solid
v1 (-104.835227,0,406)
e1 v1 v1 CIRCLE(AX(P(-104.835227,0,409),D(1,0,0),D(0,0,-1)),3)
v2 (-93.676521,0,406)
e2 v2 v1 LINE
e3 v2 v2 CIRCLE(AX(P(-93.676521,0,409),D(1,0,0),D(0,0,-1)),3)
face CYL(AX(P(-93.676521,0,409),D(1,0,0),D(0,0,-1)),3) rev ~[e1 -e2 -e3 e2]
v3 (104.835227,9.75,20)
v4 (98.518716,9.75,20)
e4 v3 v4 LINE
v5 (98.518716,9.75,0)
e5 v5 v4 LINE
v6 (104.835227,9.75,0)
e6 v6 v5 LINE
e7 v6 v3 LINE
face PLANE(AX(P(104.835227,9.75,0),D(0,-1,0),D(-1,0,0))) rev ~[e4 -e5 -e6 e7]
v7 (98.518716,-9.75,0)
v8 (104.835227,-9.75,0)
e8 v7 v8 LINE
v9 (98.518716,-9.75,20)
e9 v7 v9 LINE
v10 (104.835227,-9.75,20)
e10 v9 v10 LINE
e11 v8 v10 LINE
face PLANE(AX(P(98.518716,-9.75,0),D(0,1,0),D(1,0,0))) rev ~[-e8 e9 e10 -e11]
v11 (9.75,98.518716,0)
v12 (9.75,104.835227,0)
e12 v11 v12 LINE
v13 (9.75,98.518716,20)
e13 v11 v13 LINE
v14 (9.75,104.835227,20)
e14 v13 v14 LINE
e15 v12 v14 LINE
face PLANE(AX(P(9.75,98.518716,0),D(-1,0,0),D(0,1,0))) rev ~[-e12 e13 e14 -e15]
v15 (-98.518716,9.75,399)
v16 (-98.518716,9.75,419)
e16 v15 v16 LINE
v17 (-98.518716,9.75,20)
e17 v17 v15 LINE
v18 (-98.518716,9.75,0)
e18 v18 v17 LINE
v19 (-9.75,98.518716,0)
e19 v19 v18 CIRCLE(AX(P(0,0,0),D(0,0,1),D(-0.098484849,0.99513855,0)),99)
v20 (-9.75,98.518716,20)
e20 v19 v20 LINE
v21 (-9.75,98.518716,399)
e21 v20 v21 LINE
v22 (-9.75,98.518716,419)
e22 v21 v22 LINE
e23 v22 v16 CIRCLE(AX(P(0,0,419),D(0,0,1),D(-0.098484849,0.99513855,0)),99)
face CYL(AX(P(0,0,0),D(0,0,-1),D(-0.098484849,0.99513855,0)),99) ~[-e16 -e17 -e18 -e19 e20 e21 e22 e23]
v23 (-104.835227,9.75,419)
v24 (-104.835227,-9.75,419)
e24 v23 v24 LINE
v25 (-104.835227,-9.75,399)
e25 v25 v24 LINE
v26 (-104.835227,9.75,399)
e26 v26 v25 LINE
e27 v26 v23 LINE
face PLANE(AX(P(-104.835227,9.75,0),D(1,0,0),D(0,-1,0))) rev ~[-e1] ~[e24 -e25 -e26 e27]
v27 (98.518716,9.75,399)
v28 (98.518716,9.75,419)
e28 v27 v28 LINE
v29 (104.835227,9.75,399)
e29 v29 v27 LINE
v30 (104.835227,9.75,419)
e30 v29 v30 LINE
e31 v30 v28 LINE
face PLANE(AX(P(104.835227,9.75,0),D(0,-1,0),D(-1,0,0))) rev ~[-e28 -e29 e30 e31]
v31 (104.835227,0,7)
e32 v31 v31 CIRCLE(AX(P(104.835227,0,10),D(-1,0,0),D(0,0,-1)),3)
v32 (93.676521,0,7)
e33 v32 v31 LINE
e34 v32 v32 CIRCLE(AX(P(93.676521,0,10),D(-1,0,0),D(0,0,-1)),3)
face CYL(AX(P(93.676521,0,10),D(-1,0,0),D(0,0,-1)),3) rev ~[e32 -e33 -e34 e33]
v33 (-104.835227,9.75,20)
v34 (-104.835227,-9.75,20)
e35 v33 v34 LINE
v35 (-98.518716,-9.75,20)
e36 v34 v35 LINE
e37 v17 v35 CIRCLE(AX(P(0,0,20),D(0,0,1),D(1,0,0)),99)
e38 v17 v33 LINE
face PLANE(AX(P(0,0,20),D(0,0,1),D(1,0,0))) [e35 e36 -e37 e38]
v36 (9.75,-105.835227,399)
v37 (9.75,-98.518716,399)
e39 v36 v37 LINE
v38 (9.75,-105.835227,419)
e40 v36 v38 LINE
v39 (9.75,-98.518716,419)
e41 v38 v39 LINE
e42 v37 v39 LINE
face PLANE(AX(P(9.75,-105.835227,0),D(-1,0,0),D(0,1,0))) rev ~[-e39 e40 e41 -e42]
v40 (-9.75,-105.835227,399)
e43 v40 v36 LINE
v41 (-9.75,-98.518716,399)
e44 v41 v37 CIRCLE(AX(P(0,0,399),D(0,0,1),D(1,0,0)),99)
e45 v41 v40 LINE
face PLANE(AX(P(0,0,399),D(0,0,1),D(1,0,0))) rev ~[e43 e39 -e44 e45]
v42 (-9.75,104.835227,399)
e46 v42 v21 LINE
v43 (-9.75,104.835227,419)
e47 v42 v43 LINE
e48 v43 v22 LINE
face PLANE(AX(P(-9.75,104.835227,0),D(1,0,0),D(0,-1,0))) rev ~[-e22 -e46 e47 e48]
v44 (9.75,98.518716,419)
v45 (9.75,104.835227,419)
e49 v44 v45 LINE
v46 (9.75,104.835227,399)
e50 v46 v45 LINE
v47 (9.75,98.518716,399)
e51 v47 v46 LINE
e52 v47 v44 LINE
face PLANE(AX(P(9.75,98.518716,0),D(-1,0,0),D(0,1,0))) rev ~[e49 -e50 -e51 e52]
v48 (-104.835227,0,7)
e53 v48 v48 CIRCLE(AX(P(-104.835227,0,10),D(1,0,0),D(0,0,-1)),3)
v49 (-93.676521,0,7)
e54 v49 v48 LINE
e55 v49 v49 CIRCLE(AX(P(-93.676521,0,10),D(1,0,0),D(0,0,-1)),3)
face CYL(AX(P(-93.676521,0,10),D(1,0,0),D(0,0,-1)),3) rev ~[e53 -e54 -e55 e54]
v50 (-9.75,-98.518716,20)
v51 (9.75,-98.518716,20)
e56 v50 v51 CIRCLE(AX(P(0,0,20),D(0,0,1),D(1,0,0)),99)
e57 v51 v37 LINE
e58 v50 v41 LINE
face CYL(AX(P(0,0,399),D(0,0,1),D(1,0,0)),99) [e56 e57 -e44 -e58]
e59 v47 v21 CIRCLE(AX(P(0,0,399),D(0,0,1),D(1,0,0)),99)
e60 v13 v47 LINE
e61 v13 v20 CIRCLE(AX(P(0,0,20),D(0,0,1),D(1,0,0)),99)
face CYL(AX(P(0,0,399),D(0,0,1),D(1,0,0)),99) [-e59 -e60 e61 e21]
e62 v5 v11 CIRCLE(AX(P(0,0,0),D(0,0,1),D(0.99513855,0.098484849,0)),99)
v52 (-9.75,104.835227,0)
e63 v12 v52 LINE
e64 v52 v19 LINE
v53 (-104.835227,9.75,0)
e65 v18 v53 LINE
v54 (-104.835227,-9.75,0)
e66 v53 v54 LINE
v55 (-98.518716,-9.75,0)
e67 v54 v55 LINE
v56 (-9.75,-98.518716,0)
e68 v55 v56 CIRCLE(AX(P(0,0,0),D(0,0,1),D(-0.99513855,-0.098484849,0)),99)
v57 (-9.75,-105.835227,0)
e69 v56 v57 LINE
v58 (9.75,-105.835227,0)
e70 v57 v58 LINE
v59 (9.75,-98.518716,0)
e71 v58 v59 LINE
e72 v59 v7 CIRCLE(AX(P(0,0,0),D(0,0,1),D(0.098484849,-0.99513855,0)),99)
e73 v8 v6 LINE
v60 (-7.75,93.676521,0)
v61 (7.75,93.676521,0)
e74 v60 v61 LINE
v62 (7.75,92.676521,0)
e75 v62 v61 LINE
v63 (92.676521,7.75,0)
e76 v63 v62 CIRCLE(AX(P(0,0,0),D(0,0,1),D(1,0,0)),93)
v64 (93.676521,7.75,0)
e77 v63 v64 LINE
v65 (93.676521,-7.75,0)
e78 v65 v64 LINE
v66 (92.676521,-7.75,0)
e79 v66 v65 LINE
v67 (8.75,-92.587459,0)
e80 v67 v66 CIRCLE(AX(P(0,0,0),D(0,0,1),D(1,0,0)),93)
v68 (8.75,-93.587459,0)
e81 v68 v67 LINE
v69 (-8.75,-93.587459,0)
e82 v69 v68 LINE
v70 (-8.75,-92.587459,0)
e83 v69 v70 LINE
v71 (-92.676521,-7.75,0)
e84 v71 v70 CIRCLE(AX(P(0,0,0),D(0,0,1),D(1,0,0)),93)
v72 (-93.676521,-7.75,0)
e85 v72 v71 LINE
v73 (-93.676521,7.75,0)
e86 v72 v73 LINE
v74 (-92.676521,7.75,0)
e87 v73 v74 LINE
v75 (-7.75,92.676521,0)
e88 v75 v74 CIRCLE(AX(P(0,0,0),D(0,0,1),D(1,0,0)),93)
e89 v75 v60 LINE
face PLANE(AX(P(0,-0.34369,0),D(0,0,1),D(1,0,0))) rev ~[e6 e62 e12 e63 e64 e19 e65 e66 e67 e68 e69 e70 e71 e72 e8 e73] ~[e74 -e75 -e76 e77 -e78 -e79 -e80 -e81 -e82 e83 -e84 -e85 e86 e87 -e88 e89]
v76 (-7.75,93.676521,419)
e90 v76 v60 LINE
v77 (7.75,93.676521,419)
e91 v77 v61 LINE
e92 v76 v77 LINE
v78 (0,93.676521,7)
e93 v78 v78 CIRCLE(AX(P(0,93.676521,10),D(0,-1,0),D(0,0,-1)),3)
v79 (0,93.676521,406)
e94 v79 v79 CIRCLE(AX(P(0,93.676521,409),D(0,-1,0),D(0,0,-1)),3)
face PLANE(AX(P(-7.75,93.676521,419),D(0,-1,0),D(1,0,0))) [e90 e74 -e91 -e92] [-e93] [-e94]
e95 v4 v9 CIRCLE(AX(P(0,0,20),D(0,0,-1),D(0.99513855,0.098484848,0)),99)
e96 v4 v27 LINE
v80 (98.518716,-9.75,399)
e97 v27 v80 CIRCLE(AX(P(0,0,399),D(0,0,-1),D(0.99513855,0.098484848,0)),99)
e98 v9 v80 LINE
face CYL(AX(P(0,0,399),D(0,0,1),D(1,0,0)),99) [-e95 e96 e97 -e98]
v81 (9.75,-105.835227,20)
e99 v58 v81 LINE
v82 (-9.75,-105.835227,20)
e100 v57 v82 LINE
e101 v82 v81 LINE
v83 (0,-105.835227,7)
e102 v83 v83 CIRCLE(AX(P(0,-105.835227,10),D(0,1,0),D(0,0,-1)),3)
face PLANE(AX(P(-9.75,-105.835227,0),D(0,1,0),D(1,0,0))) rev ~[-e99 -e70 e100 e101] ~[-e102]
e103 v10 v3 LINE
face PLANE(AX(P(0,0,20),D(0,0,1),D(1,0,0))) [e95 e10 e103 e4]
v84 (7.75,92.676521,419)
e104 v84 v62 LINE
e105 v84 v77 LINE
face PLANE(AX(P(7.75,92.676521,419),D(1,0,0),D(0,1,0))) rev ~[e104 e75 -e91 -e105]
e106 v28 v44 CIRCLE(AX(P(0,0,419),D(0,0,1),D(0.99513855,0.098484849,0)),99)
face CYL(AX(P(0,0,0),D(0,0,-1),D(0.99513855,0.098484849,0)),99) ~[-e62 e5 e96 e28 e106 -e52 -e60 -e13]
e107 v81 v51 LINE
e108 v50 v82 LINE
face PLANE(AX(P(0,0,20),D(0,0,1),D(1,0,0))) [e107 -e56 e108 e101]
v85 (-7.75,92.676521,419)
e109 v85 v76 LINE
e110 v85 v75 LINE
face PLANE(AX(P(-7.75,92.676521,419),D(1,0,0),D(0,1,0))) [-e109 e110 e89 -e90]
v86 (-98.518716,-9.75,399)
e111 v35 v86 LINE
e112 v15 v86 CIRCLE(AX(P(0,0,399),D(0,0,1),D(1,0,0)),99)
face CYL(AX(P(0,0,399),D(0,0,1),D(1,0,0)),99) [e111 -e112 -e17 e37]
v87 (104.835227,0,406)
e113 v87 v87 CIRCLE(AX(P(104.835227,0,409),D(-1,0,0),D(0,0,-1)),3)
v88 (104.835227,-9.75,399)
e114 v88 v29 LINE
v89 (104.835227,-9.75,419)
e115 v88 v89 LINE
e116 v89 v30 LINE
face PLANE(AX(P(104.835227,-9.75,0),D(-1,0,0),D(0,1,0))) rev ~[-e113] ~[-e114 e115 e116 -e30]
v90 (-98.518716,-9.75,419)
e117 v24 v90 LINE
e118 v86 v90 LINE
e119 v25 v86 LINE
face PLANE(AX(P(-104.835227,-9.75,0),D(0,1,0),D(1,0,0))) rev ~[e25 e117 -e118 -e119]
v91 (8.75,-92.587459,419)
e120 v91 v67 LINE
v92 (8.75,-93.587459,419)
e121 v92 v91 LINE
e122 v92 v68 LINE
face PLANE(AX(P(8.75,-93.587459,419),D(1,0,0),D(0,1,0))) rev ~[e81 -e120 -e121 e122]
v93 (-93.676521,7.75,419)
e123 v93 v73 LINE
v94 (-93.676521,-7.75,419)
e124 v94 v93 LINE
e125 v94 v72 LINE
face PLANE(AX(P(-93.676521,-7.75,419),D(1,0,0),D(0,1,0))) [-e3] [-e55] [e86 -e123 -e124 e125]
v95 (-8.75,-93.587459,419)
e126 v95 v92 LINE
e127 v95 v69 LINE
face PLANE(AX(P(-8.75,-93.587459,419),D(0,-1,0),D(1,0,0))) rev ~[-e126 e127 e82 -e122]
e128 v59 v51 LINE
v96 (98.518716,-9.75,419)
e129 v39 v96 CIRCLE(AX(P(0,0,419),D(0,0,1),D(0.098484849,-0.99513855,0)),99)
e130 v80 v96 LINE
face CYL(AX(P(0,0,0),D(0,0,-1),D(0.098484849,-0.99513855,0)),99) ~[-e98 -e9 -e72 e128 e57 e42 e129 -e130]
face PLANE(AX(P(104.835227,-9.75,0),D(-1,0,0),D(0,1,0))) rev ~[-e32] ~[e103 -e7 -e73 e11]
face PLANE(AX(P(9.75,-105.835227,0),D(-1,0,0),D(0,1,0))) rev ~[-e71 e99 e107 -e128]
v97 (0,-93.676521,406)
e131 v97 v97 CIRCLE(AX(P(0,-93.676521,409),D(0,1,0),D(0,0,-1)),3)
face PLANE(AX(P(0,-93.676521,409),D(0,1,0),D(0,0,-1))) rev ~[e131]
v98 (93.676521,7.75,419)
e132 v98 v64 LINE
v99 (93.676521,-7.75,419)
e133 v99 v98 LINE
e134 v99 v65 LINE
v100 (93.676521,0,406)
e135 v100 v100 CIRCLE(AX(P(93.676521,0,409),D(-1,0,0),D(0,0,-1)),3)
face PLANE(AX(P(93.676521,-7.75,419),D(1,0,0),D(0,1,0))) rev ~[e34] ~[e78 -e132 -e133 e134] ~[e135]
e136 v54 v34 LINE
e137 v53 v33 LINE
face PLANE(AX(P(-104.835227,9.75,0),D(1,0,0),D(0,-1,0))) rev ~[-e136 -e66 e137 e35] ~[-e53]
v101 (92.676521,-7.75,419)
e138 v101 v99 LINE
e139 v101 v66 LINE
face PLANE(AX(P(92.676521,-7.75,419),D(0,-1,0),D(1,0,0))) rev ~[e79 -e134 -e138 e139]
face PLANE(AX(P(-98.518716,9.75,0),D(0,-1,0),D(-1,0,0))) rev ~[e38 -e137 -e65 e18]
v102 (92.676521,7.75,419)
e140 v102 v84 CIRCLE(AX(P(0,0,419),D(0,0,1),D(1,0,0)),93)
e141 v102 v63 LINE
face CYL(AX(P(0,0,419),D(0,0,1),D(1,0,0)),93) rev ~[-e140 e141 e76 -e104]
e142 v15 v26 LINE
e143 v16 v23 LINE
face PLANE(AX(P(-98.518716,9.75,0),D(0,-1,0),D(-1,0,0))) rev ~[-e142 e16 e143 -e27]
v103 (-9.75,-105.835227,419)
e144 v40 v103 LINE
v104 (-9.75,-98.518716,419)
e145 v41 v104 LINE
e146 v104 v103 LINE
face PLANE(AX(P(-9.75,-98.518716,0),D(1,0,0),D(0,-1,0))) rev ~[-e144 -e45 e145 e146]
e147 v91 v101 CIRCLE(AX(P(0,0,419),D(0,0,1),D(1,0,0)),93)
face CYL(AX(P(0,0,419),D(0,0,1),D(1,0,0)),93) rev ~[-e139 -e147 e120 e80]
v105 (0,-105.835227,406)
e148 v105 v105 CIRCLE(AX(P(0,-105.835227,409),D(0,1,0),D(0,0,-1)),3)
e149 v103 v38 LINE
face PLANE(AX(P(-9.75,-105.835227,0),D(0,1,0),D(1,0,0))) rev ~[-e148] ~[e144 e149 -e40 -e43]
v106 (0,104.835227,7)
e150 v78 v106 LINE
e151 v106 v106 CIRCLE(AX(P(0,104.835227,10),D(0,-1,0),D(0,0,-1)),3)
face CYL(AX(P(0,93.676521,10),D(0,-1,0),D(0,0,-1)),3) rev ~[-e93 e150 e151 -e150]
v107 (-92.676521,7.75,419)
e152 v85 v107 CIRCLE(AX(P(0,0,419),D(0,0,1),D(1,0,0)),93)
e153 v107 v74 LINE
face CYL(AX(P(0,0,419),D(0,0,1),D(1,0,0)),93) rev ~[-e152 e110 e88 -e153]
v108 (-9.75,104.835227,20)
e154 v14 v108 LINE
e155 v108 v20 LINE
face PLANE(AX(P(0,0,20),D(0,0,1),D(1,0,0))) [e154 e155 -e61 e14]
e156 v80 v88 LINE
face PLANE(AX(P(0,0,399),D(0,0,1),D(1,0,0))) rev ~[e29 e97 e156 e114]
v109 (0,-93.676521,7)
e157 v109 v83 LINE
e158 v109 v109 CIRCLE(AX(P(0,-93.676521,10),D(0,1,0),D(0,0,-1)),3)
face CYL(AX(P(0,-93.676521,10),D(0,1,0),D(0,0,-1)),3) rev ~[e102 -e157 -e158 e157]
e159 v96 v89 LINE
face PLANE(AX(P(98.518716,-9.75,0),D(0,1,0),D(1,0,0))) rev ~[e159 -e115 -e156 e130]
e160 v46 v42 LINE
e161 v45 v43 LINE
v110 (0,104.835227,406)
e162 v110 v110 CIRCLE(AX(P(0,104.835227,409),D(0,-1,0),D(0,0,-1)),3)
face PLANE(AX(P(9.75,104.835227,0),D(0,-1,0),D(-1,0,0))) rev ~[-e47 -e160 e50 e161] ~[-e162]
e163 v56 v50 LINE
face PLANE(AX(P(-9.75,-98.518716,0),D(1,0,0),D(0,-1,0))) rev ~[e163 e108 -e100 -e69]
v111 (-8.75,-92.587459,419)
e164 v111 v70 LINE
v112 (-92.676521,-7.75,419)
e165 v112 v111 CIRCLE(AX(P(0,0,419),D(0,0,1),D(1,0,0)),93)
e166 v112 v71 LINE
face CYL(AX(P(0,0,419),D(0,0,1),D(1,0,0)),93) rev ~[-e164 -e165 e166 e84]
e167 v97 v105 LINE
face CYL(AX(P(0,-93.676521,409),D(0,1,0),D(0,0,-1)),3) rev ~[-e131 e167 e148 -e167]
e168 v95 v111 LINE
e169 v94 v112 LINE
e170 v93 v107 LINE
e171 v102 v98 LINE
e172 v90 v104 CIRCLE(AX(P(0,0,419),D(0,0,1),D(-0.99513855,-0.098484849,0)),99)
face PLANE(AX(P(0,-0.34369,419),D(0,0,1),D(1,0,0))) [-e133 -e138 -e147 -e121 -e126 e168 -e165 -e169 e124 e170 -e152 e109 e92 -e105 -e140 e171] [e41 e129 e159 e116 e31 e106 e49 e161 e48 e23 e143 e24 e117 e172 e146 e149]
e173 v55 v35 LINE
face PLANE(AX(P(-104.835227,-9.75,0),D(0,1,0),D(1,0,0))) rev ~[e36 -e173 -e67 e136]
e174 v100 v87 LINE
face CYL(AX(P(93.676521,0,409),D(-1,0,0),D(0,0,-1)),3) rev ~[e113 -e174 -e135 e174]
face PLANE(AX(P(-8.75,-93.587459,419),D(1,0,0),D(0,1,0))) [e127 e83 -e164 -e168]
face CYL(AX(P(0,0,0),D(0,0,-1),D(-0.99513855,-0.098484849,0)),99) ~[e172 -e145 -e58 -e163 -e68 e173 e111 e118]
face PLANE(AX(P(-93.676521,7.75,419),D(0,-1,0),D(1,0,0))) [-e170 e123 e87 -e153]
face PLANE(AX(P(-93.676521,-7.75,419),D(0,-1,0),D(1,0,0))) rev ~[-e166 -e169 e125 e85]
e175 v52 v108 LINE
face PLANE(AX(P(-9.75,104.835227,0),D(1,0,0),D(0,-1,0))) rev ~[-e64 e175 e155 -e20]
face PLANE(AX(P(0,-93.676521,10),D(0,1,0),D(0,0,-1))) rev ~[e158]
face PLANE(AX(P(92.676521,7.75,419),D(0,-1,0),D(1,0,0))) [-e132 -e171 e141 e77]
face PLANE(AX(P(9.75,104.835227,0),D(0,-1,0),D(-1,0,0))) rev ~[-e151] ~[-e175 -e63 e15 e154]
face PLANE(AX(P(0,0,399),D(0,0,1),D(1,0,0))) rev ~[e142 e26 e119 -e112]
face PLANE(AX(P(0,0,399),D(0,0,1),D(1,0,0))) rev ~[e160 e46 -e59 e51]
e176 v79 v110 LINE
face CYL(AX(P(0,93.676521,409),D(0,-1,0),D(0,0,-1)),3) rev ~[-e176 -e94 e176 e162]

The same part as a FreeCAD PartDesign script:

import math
import FreeCAD as App
import Part
import Sketcher

V = App.Vector
Q = App.Units.Quantity


def add_polygon(sketch, points):
    """Adds a closed chain of lines whose ends are joined by coincident constraints."""
    first, n = sketch.GeometryCount, len(points)
    for a, b in zip(points, points[1:] + points[:1]):
        sketch.addGeometry(Part.LineSegment(App.Vector(*a, 0), App.Vector(*b, 0)), False)
    for i in range(n):
        sketch.addConstraint(Sketcher.Constraint("Coincident", first + i, 2, first + (i + 1) % n, 1))

doc = App.newDocument("Part")
body = doc.addObject("PartDesign::Body", "Body")

sketch1 = body.newObject("Sketcher::SketchObject", "Sketch")
sketch1.AttachmentSupport = (doc.getObject("XY_Plane"), [""])
sketch1.MapMode = "FlatFace"
sketch1.addGeometry([
    Part.LineSegment(V(-10, -99, 0), V(-10, -106, 0)),
    Part.LineSegment(V(-10, -106, 0), V(10, -106, 0)),
    Part.LineSegment(V(10, -106, 0), V(10, -99, 0)),
    Part.ArcOfCircle(Part.Circle(V(0, 0, 0), V(0, 0, 1), 99), math.radians(-84), math.radians(-6)),
    Part.LineSegment(V(99, -10, 0), V(105, -10, 0)),
    Part.LineSegment(V(105, -10, 0), V(105, 10, 0)),
    Part.LineSegment(V(105, 10, 0), V(99, 10, 0)),
    Part.ArcOfCircle(Part.Circle(V(0, 0, 0), V(0, 0, 1), 99), math.radians(6), math.radians(84)),
    Part.LineSegment(V(10, 99, 0), V(10, 105, 0)),
    Part.LineSegment(V(10, 105, 0), V(-10, 105, 0)),
    Part.LineSegment(V(-10, 105, 0), V(-10, 99, 0)),
    Part.ArcOfCircle(Part.Circle(V(0, 0, 0), V(0, 0, 1), 99), math.radians(96), math.radians(174)),
    Part.LineSegment(V(-99, 10, 0), V(-105, 10, 0)),
    Part.LineSegment(V(-105, 10, 0), V(-105, -10, 0)),
    Part.LineSegment(V(-105, -10, 0), V(-99, -10, 0)),
    Part.ArcOfCircle(Part.Circle(V(0, 0, 0), V(0, 0, 1), 99), math.radians(-174), math.radians(-96)),
], False)
sketch1.addConstraint([
    Sketcher.Constraint("Coincident", 0, 2, 1, 1),
    Sketcher.Constraint("Coincident", 1, 2, 2, 1),
    Sketcher.Constraint("Coincident", 2, 2, 3, 1),
    Sketcher.Constraint("Coincident", 3, 2, 4, 1),
    Sketcher.Constraint("Coincident", 4, 2, 5, 1),
    Sketcher.Constraint("Coincident", 5, 2, 6, 1),
    Sketcher.Constraint("Coincident", 6, 2, 7, 1),
    Sketcher.Constraint("Coincident", 7, 2, 8, 1),
    Sketcher.Constraint("Coincident", 8, 2, 9, 1),
    Sketcher.Constraint("Coincident", 9, 2, 10, 1),
    Sketcher.Constraint("Coincident", 10, 2, 11, 1),
    Sketcher.Constraint("Coincident", 11, 2, 12, 1),
    Sketcher.Constraint("Coincident", 12, 2, 13, 1),
    Sketcher.Constraint("Coincident", 13, 2, 14, 1),
    Sketcher.Constraint("Coincident", 14, 2, 15, 1),
    Sketcher.Constraint("Coincident", 15, 2, 0, 1),
    Sketcher.Constraint("Vertical", 0),
    Sketcher.Constraint("Horizontal", 1),
    Sketcher.Constraint("Vertical", 2),
    Sketcher.Constraint("Horizontal", 4),
    Sketcher.Constraint("Vertical", 5),
    Sketcher.Constraint("Horizontal", 6),
    Sketcher.Constraint("Vertical", 8),
    Sketcher.Constraint("Horizontal", 9),
    Sketcher.Constraint("Vertical", 10),
    Sketcher.Constraint("Horizontal", 12),
    Sketcher.Constraint("Vertical", 13),
    Sketcher.Constraint("Horizontal", 14),
    Sketcher.Constraint("Coincident", 3, 3, -1, 1),
    Sketcher.Constraint("Coincident", 7, 3, -1, 1),
    Sketcher.Constraint("Coincident", 11, 3, -1, 1),
    Sketcher.Constraint("Coincident", 15, 3, -1, 1),
    Sketcher.Constraint("Equal", 3, 7),
    Sketcher.Constraint("Equal", 7, 11),
    Sketcher.Constraint("Equal", 11, 15),
    Sketcher.Constraint("Symmetric", 4, 2, 12, 2, -1, 1),
    Sketcher.Constraint("Horizontal", 7, 2, 10, 2),
    Sketcher.Constraint("Horizontal", 6, 2, 11, 2),
    Sketcher.Constraint("Horizontal", 4, 2, 13, 2),
    Sketcher.Constraint("Horizontal", 2, 2, 15, 2),
    Sketcher.Constraint("Vertical", 2, 2, 7, 2),
    Sketcher.Constraint("Equal", 9, 5),
    Sketcher.Constraint("Equal", 14, 8),
    Sketcher.Constraint("Radius", 3, Q("99 mm")),
    Sketcher.Constraint("DistanceX", 1, 1, 1, 2, Q("19.5 mm")),
    Sketcher.Constraint("DistanceX", 4, 1, 4, 2, Q("6.31651 mm")),
    Sketcher.Constraint("DistanceY", 0, 2, 0, 1, Q("7.31651 mm")),
])
pad1 = body.newObject("PartDesign::Pad", "Pad")
pad1.Profile = sketch1
pad1.Length = 419

sketch2 = body.newObject("Sketcher::SketchObject", "Sketch001")
sketch2.AttachmentSupport = (doc.getObject("XY_Plane"), [""])
sketch2.MapMode = "FlatFace"
sketch2.AttachmentOffset = App.Placement(V(0, 0, 399), App.Rotation())
sketch2.addGeometry([
    Part.Circle(V(0, 0, 0), V(0, 0, 1), 119),
    Part.Circle(V(0, 0, 0), V(0, 0, 1), 99),
], False)
sketch2.addConstraint([
    Sketcher.Constraint("Coincident", 0, 3, -1, 1),
    Sketcher.Constraint("Coincident", 1, 3, -1, 1),
    Sketcher.Constraint("Diameter", 0, Q("238 mm")),
    Sketcher.Constraint("Diameter", 1, Q("198 mm")),
])
pocket1 = body.newObject("PartDesign::Pocket", "Pocket")
pocket1.Profile = sketch2
pocket1.Length = 379

sketch3 = body.newObject("Sketcher::SketchObject", "Sketch002")
sketch3.AttachmentSupport = (doc.getObject("XY_Plane"), [""])
sketch3.MapMode = "FlatFace"
sketch3.AttachmentOffset = App.Placement(V(0, 0, 419), App.Rotation())
sketch3.addGeometry(Part.Circle(V(0, 0, 0), V(0, 0, 1), 93), False)
sketch3.addConstraint([
    Sketcher.Constraint("Coincident", 0, 3, -1, 1),
    Sketcher.Constraint("Diameter", 0, Q("186 mm")),
])
pocket2 = body.newObject("PartDesign::Pocket", "Pocket001")
pocket2.Profile = sketch3
pocket2.Type = "ThroughAll"

sketch4 = body.newObject("Sketcher::SketchObject", "Sketch003")
sketch4.AttachmentSupport = (doc.getObject("XY_Plane"), [""])
sketch4.MapMode = "FlatFace"
sketch4.AttachmentOffset = App.Placement(V(0, 0, 419), App.Rotation())
add_polygon(sketch4, [(-8.8, -92.6), (-8.8, -93.6), (8.8, -93.6), (8.8, -92.6)])
add_polygon(sketch4, [(-93.7, 7.8), (-93.7, -7.8), (-92.7, -7.8), (-92.7, 7.8)])
add_polygon(sketch4, [(-7.8, 93.7), (-7.8, 92.7), (7.8, 92.7), (7.8, 93.7)])
add_polygon(sketch4, [(92.7, 7.8), (92.7, -7.8), (93.7, -7.8), (93.7, 7.8)])
sketch4.addConstraint([
    Sketcher.Constraint("Vertical", 0),
    Sketcher.Constraint("Horizontal", 1),
    Sketcher.Constraint("Vertical", 2),
    Sketcher.Constraint("Horizontal", 3),
    Sketcher.Constraint("Vertical", 4),
    Sketcher.Constraint("Horizontal", 5),
    Sketcher.Constraint("Vertical", 6),
    Sketcher.Constraint("Horizontal", 7),
    Sketcher.Constraint("Vertical", 8),
    Sketcher.Constraint("Horizontal", 9),
    Sketcher.Constraint("Vertical", 10),
    Sketcher.Constraint("Horizontal", 11),
    Sketcher.Constraint("Vertical", 12),
    Sketcher.Constraint("Horizontal", 13),
    Sketcher.Constraint("Vertical", 14),
    Sketcher.Constraint("Horizontal", 15),
    Sketcher.Constraint("Symmetric", 6, 2, 12, 2, -1, 1),
    Sketcher.Constraint("Symmetric", 4, 2, 14, 2, -1, 1),
    Sketcher.Constraint("Horizontal", 5, 2, 12, 2),
    Sketcher.Constraint("Equal", 15, 0),
    Sketcher.Constraint("Equal", 11, 4),
    Sketcher.Constraint("Equal", 2, 8),
    Sketcher.Constraint("DistanceX", 5, 1, 5, 2, Q("1 mm")),
    Sketcher.Constraint("DistanceX", 1, 1, 1, 2, Q("17.5 mm")),
    Sketcher.Constraint("DistanceX", 9, 1, 9, 2, Q("15.5 mm")),
    Sketcher.Constraint("DistanceX", 3, 2, 8, 2, Q("1 mm")),
    Sketcher.Constraint("DistanceX", 0, 2, -1, 1, Q("8.75 mm")),
    Sketcher.Constraint("DistanceY", 0, 2, -1, 1, Q("93.587459 mm")),
    Sketcher.Constraint("DistanceX", 4, 2, -1, 1, Q("93.676521 mm")),
    Sketcher.Constraint("DistanceY", -1, 1, 8, 2, Q("92.676521 mm")),
])
pocket3 = body.newObject("PartDesign::Pocket", "Pocket002")
pocket3.Profile = sketch4
pocket3.Type = "ThroughAll"

sketch5 = body.newObject("Sketcher::SketchObject", "Sketch004")
sketch5.AttachmentSupport = (doc.getObject("YZ_Plane"), [""])
sketch5.MapMode = "FlatFace"
sketch5.AttachmentOffset = App.Placement(V(0, 0, -93.676521), App.Rotation())
sketch5.addGeometry([
    Part.Circle(V(0, 409, 0), V(0, 0, 1), 3),
    Part.Circle(V(0, 10, 0), V(0, 0, 1), 3),
], False)
sketch5.addConstraint([
    Sketcher.Constraint("Equal", 0, 1),
    Sketcher.Constraint("PointOnObject", 0, 3, -2),
    Sketcher.Constraint("PointOnObject", 1, 3, -2),
    Sketcher.Constraint("Diameter", 0, Q("6 mm")),
    Sketcher.Constraint("DistanceY", -1, 1, 0, 3, Q("409 mm")),
    Sketcher.Constraint("DistanceY", -1, 1, 1, 3, Q("10 mm")),
])
pocket4 = body.newObject("PartDesign::Pocket", "Pocket003")
pocket4.Profile = sketch5
pocket4.Type = "ThroughAll"
doc.recompute()

polarpattern = body.newObject("PartDesign::PolarPattern", "PolarPattern")
polarpattern.Originals = [pocket4]
polarpattern.Axis = (doc.getObject("Z_Axis"), [""])
polarpattern.Angle = 360
polarpattern.Occurrences = 4
body.Tip = polarpattern

doc.recompute()
